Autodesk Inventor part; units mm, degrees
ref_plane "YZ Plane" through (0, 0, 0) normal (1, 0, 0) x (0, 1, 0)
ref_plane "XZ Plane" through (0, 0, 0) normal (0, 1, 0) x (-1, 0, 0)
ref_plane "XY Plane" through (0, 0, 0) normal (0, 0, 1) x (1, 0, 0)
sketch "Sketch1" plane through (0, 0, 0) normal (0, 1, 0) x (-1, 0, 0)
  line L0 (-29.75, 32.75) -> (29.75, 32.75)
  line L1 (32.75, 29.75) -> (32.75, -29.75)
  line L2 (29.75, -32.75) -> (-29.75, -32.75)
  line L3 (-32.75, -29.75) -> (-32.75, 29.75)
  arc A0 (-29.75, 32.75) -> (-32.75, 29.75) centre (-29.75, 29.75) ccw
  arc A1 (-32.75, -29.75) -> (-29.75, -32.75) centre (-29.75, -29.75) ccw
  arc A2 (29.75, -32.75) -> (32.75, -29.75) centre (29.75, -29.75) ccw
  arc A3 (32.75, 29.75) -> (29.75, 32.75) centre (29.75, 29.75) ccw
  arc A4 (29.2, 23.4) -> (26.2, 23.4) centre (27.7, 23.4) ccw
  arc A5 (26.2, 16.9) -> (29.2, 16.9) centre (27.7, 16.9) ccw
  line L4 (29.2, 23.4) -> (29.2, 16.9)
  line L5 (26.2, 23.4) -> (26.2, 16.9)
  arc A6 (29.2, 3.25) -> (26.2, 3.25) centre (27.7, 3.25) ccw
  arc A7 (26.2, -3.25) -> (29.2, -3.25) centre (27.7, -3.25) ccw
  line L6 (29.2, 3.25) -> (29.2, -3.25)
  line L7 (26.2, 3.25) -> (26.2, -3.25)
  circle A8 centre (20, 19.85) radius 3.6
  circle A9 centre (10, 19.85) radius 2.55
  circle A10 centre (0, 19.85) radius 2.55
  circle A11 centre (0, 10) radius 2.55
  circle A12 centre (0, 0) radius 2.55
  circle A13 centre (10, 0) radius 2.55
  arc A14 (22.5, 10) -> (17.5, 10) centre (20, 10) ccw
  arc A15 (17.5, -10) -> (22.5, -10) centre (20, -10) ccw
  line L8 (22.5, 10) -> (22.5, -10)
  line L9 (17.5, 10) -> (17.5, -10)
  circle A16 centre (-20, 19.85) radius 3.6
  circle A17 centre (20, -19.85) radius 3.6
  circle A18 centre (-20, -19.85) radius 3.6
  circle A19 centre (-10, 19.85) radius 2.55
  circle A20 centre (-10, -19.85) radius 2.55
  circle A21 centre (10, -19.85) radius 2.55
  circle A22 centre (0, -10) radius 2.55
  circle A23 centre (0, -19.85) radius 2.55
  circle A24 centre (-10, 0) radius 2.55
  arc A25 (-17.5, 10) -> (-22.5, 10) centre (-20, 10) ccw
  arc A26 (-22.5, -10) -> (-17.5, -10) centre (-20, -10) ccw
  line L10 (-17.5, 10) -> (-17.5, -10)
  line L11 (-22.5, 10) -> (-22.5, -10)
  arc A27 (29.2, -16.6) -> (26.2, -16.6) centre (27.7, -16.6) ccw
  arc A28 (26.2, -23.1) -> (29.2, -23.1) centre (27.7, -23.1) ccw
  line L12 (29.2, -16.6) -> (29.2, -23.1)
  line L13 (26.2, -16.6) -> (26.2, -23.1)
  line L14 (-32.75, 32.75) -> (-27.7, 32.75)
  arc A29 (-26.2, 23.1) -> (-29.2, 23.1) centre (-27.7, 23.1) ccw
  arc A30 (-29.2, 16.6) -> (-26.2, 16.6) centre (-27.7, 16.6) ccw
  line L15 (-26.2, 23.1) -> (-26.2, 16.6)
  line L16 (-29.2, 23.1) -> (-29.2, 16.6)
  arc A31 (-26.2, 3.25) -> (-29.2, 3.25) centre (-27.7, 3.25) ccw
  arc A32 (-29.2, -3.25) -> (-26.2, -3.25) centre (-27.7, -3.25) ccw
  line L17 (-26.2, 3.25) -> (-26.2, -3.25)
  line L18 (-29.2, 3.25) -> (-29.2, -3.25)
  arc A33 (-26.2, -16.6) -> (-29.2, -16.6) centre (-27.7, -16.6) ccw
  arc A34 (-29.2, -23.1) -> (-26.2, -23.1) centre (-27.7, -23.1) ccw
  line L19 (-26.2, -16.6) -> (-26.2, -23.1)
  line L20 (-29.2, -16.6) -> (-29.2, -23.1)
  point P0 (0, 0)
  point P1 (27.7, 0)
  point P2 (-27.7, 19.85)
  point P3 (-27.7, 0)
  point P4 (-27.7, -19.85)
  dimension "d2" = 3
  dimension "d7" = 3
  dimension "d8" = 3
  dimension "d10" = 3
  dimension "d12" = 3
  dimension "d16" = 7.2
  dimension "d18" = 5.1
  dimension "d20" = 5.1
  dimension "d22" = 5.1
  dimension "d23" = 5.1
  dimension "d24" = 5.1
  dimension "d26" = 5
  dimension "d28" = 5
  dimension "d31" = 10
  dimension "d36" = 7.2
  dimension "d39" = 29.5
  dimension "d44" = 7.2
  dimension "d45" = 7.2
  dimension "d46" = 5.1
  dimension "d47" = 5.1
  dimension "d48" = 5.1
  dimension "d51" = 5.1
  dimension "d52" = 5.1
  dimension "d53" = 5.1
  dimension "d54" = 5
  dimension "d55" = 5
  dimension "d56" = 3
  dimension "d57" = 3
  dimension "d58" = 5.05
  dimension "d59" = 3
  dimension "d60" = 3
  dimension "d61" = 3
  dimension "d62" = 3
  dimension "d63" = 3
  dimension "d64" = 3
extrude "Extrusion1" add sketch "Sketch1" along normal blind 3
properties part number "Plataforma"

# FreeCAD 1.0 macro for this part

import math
import FreeCAD as App
import Part
import Sketcher

V = App.Vector

doc = App.newDocument("Part")
params = doc.addObject("Spreadsheet::Sheet", "Params")
for row, (alias, value) in enumerate([
    ("sketch1_radius", "3 mm"),
    ("sketch1_diameter", "7.2 mm"),
    ("sketch1_diameter2", "5.1 mm"),
    ("sketch1_radius2", "1.5 mm"),
    ("sketch1_radius3", "2.5 mm"),
    ("pad1_length", "3 mm"),
], start=1):
    params.set(f"A{row}", alias)
    params.set(f"B{row}", "=" + value)
    params.setAlias(f"B{row}", alias)

body = doc.addObject("PartDesign::Body", "Body")

sketch1 = doc.addObject("Sketcher::SketchObject", "Sketch")
body.addObject(sketch1)
sketch1.AttachmentSupport = (doc.XZ_Plane, [""])
sketch1.MapMode = "FlatFace"
sketch1.addGeometry(Part.LineSegment(V(-29.8, 32.8, 0), V(29.8, 32.8, 0)), False)
sketch1.addGeometry(Part.ArcOfCircle(Part.Circle(V(29.8, 29.8, 0), V(0, 0, 1), 3), math.radians(0), math.radians(90)), False)
sketch1.addGeometry(Part.LineSegment(V(32.8, 29.8, 0), V(32.8, -29.8, 0)), False)
sketch1.addGeometry(Part.ArcOfCircle(Part.Circle(V(29.8, -29.8, 0), V(0, 0, 1), 3), math.radians(-90), math.radians(0)), False)
sketch1.addGeometry(Part.LineSegment(V(29.8, -32.8, 0), V(-29.8, -32.8, 0)), False)
sketch1.addGeometry(Part.ArcOfCircle(Part.Circle(V(-29.8, -29.8, 0), V(0, 0, 1), 3), math.radians(180), math.radians(270)), False)
sketch1.addGeometry(Part.LineSegment(V(-32.8, -29.8, 0), V(-32.8, 29.8, 0)), False)
sketch1.addGeometry(Part.ArcOfCircle(Part.Circle(V(-29.8, 29.8, 0), V(0, 0, 1), 3), math.radians(90), math.radians(180)), False)
sketch1.addGeometry(Part.ArcOfCircle(Part.Circle(V(27.7, -16.6, 0), V(0, 0, 1), 1.5), math.radians(0), math.radians(180)), False)
sketch1.addGeometry(Part.LineSegment(V(26.2, -16.6, 0), V(26.2, -23.1, 0)), False)
sketch1.addGeometry(Part.ArcOfCircle(Part.Circle(V(27.7, -23.1, 0), V(0, 0, 1), 1.5), math.radians(180), math.radians(360)), False)
sketch1.addGeometry(Part.LineSegment(V(29.2, -23.1, 0), V(29.2, -16.6, 0)), False)
sketch1.addGeometry(Part.Circle(V(20, -19.9, 0), V(0, 0, 1), 3.6), False)
sketch1.addGeometry(Part.Circle(V(10, -19.9, 0), V(0, 0, 1), 2.5), False)
sketch1.addGeometry(Part.Circle(V(0, -19.9, 0), V(0, 0, 1), 2.5), False)
sketch1.addGeometry(Part.Circle(V(-10, -19.9, 0), V(0, 0, 1), 2.5), False)
sketch1.addGeometry(Part.Circle(V(-20, -19.9, 0), V(0, 0, 1), 3.6), False)
sketch1.addGeometry(Part.ArcOfCircle(Part.Circle(V(-27.7, -16.6, 0), V(0, 0, 1), 1.5), math.radians(0), math.radians(180)), False)
sketch1.addGeometry(Part.LineSegment(V(-29.2, -16.6, 0), V(-29.2, -23.1, 0)), False)
sketch1.addGeometry(Part.ArcOfCircle(Part.Circle(V(-27.7, -23.1, 0), V(0, 0, 1), 1.5), math.radians(180), math.radians(360)), False)
sketch1.addGeometry(Part.LineSegment(V(-26.2, -23.1, 0), V(-26.2, -16.6, 0)), False)
sketch1.addGeometry(Part.Circle(V(0, -10, 0), V(0, 0, 1), 2.5), False)
sketch1.addGeometry(Part.ArcOfCircle(Part.Circle(V(27.7, 3.2, 0), V(0, 0, 1), 1.5), math.radians(0), math.radians(180)), False)
sketch1.addGeometry(Part.LineSegment(V(26.2, 3.2, 0), V(26.2, -3.2, 0)), False)
sketch1.addGeometry(Part.ArcOfCircle(Part.Circle(V(27.7, -3.2, 0), V(0, 0, 1), 1.5), math.radians(180), math.radians(360)), False)
sketch1.addGeometry(Part.LineSegment(V(29.2, -3.2, 0), V(29.2, 3.2, 0)), False)
sketch1.addGeometry(Part.ArcOfCircle(Part.Circle(V(20, 10, 0), V(0, 0, 1), 2.5), math.radians(0), math.radians(180)), False)
sketch1.addGeometry(Part.LineSegment(V(17.5, 10, 0), V(17.5, -10, 0)), False)
sketch1.addGeometry(Part.ArcOfCircle(Part.Circle(V(20, -10, 0), V(0, 0, 1), 2.5), math.radians(180), math.radians(360)), False)
sketch1.addGeometry(Part.LineSegment(V(22.5, -10, 0), V(22.5, 10, 0)), False)
sketch1.addGeometry(Part.Circle(V(10, 0, 0), V(0, 0, 1), 2.5), False)
sketch1.addGeometry(Part.ArcOfCircle(Part.Circle(V(27.7, 23.1, 0), V(0, 0, 1), 1.5), math.radians(0), math.radians(180)), False)
sketch1.addGeometry(Part.LineSegment(V(26.2, 23.1, 0), V(26.2, 16.6, 0)), False)
sketch1.addGeometry(Part.ArcOfCircle(Part.Circle(V(27.7, 16.6, 0), V(0, 0, 1), 1.5), math.radians(180), math.radians(360)), False)
sketch1.addGeometry(Part.LineSegment(V(29.2, 16.6, 0), V(29.2, 23.1, 0)), False)
sketch1.addGeometry(Part.Circle(V(20, 19.9, 0), V(0, 0, 1), 3.6), False)
sketch1.addGeometry(Part.Circle(V(10, 19.9, 0), V(0, 0, 1), 2.5), False)
sketch1.addGeometry(Part.Circle(V(0, 0, 0), V(0, 0, 1), 2.5), False)
sketch1.addGeometry(Part.Circle(V(-10, 0, 0), V(0, 0, 1), 2.5), False)
sketch1.addGeometry(Part.Circle(V(0, 10, 0), V(0, 0, 1), 2.5), False)
sketch1.addGeometry(Part.ArcOfCircle(Part.Circle(V(-20, 10, 0), V(0, 0, 1), 2.5), math.radians(0), math.radians(180)), False)
sketch1.addGeometry(Part.LineSegment(V(-22.5, 10, 0), V(-22.5, -10, 0)), False)
sketch1.addGeometry(Part.ArcOfCircle(Part.Circle(V(-20, -10, 0), V(0, 0, 1), 2.5), math.radians(180), math.radians(360)), False)
sketch1.addGeometry(Part.LineSegment(V(-17.5, -10, 0), V(-17.5, 10, 0)), False)
sketch1.addGeometry(Part.ArcOfCircle(Part.Circle(V(-27.7, 3.2, 0), V(0, 0, 1), 1.5), math.radians(0), math.radians(180)), False)
sketch1.addGeometry(Part.LineSegment(V(-29.2, 3.2, 0), V(-29.2, -3.2, 0)), False)
sketch1.addGeometry(Part.ArcOfCircle(Part.Circle(V(-27.7, -3.2, 0), V(0, 0, 1), 1.5), math.radians(180), math.radians(360)), False)
sketch1.addGeometry(Part.LineSegment(V(-26.2, -3.2, 0), V(-26.2, 3.2, 0)), False)
sketch1.addGeometry(Part.Circle(V(0, 19.9, 0), V(0, 0, 1), 2.5), False)
sketch1.addGeometry(Part.Circle(V(-10, 19.9, 0), V(0, 0, 1), 2.5), False)
sketch1.addGeometry(Part.Circle(V(-20, 19.9, 0), V(0, 0, 1), 3.6), False)
sketch1.addGeometry(Part.ArcOfCircle(Part.Circle(V(-27.7, 23.4, 0), V(0, 0, 1), 1.5), math.radians(0), math.radians(180)), False)
sketch1.addGeometry(Part.LineSegment(V(-29.2, 23.4, 0), V(-29.2, 16.9, 0)), False)
sketch1.addGeometry(Part.ArcOfCircle(Part.Circle(V(-27.7, 16.9, 0), V(0, 0, 1), 1.5), math.radians(180), math.radians(360)), False)
sketch1.addGeometry(Part.LineSegment(V(-26.2, 16.9, 0), V(-26.2, 23.4, 0)), False)
sketch1.addConstraint(Sketcher.Constraint("Tangent", 0, 2, 1, 2))
sketch1.addConstraint(Sketcher.Constraint("Tangent", 1, 1, 2, 1))
sketch1.addConstraint(Sketcher.Constraint("Tangent", 2, 2, 3, 2))
sketch1.addConstraint(Sketcher.Constraint("Tangent", 3, 1, 4, 1))
sketch1.addConstraint(Sketcher.Constraint("Tangent", 4, 2, 5, 2))
sketch1.addConstraint(Sketcher.Constraint("Tangent", 5, 1, 6, 1))
sketch1.addConstraint(Sketcher.Constraint("Tangent", 6, 2, 7, 2))
sketch1.addConstraint(Sketcher.Constraint("Tangent", 7, 1, 0, 1))
sketch1.addConstraint(Sketcher.Constraint("Tangent", 8, 2, 9, 1))
sketch1.addConstraint(Sketcher.Constraint("Tangent", 9, 2, 10, 1))
sketch1.addConstraint(Sketcher.Constraint("Tangent", 10, 2, 11, 1))
sketch1.addConstraint(Sketcher.Constraint("Tangent", 11, 2, 8, 1))
sketch1.addConstraint(Sketcher.Constraint("Tangent", 17, 2, 18, 1))
sketch1.addConstraint(Sketcher.Constraint("Tangent", 18, 2, 19, 1))
sketch1.addConstraint(Sketcher.Constraint("Tangent", 19, 2, 20, 1))
sketch1.addConstraint(Sketcher.Constraint("Tangent", 20, 2, 17, 1))
sketch1.addConstraint(Sketcher.Constraint("Tangent", 22, 2, 23, 1))
sketch1.addConstraint(Sketcher.Constraint("Tangent", 23, 2, 24, 1))
sketch1.addConstraint(Sketcher.Constraint("Tangent", 24, 2, 25, 1))
sketch1.addConstraint(Sketcher.Constraint("Tangent", 25, 2, 22, 1))
sketch1.addConstraint(Sketcher.Constraint("Tangent", 26, 2, 27, 1))
sketch1.addConstraint(Sketcher.Constraint("Tangent", 27, 2, 28, 1))
sketch1.addConstraint(Sketcher.Constraint("Tangent", 28, 2, 29, 1))
sketch1.addConstraint(Sketcher.Constraint("Tangent", 29, 2, 26, 1))
sketch1.addConstraint(Sketcher.Constraint("Tangent", 31, 2, 32, 1))
sketch1.addConstraint(Sketcher.Constraint("Tangent", 32, 2, 33, 1))
sketch1.addConstraint(Sketcher.Constraint("Tangent", 33, 2, 34, 1))
sketch1.addConstraint(Sketcher.Constraint("Tangent", 34, 2, 31, 1))
sketch1.addConstraint(Sketcher.Constraint("Tangent", 40, 2, 41, 1))
sketch1.addConstraint(Sketcher.Constraint("Tangent", 41, 2, 42, 1))
sketch1.addConstraint(Sketcher.Constraint("Tangent", 42, 2, 43, 1))
sketch1.addConstraint(Sketcher.Constraint("Tangent", 43, 2, 40, 1))
sketch1.addConstraint(Sketcher.Constraint("Tangent", 44, 2, 45, 1))
sketch1.addConstraint(Sketcher.Constraint("Tangent", 45, 2, 46, 1))
sketch1.addConstraint(Sketcher.Constraint("Tangent", 46, 2, 47, 1))
sketch1.addConstraint(Sketcher.Constraint("Tangent", 47, 2, 44, 1))
sketch1.addConstraint(Sketcher.Constraint("Tangent", 51, 2, 52, 1))
sketch1.addConstraint(Sketcher.Constraint("Tangent", 52, 2, 53, 1))
sketch1.addConstraint(Sketcher.Constraint("Tangent", 53, 2, 54, 1))
sketch1.addConstraint(Sketcher.Constraint("Tangent", 54, 2, 51, 1))
sketch1.addConstraint(Sketcher.Constraint("Horizontal", 0))
sketch1.addConstraint(Sketcher.Constraint("Vertical", 2))
sketch1.addConstraint(Sketcher.Constraint("Horizontal", 4))
sketch1.addConstraint(Sketcher.Constraint("Vertical", 6))
sketch1.addConstraint(Sketcher.Constraint("Vertical", 9))
sketch1.addConstraint(Sketcher.Constraint("Vertical", 11))
sketch1.addConstraint(Sketcher.Constraint("Vertical", 18))
sketch1.addConstraint(Sketcher.Constraint("Vertical", 20))
sketch1.addConstraint(Sketcher.Constraint("Vertical", 23))
sketch1.addConstraint(Sketcher.Constraint("Vertical", 25))
sketch1.addConstraint(Sketcher.Constraint("Vertical", 27))
sketch1.addConstraint(Sketcher.Constraint("Vertical", 29))
sketch1.addConstraint(Sketcher.Constraint("Vertical", 32))
sketch1.addConstraint(Sketcher.Constraint("Vertical", 34))
sketch1.addConstraint(Sketcher.Constraint("Vertical", 41))
sketch1.addConstraint(Sketcher.Constraint("Vertical", 43))
sketch1.addConstraint(Sketcher.Constraint("Vertical", 45))
sketch1.addConstraint(Sketcher.Constraint("Vertical", 47))
sketch1.addConstraint(Sketcher.Constraint("Vertical", 52))
sketch1.addConstraint(Sketcher.Constraint("Vertical", 54))
sketch1.addConstraint(Sketcher.Constraint("Coincident", 37, 3, -1, 1))
sketch1.addConstraint(Sketcher.Constraint("Equal", 1, 3))
sketch1.addConstraint(Sketcher.Constraint("Equal", 3, 5))
sketch1.addConstraint(Sketcher.Constraint("Equal", 5, 7))
sketch1.addConstraint(Sketcher.Constraint("Equal", 13, 14))
sketch1.addConstraint(Sketcher.Constraint("Equal", 14, 15))
sketch1.addConstraint(Sketcher.Constraint("Equal", 12, 16))
sketch1.addConstraint(Sketcher.Constraint("Equal", 10, 17))
sketch1.addConstraint(Sketcher.Constraint("Equal", 15, 21))
sketch1.addConstraint(Sketcher.Constraint("Equal", 19, 22))
sketch1.addConstraint(Sketcher.Constraint("Equal", 21, 30))
sketch1.addConstraint(Sketcher.Constraint("Equal", 24, 31))
sketch1.addConstraint(Sketcher.Constraint("Equal", 16, 35))
sketch1.addConstraint(Sketcher.Constraint("Equal", 30, 36))
sketch1.addConstraint(Sketcher.Constraint("Equal", 36, 37))
sketch1.addConstraint(Sketcher.Constraint("Equal", 37, 38))
sketch1.addConstraint(Sketcher.Constraint("Equal", 38, 39))
sketch1.addConstraint(Sketcher.Constraint("Equal", 28, 40))
sketch1.addConstraint(Sketcher.Constraint("Equal", 33, 44))
sketch1.addConstraint(Sketcher.Constraint("Equal", 39, 48))
sketch1.addConstraint(Sketcher.Constraint("Equal", 48, 49))
sketch1.addConstraint(Sketcher.Constraint("Equal", 35, 50))
sketch1.addConstraint(Sketcher.Constraint("Equal", 46, 51))
sketch1.addConstraint(Sketcher.Constraint("Symmetric", 1, 3, 5, 3, -1, 1))
sketch1.addConstraint(Sketcher.Constraint("Symmetric", 19, 3, 31, 3, -1, 1))
sketch1.addConstraint(Sketcher.Constraint("Symmetric", 16, 3, 35, 3, -1, 1))
sketch1.addConstraint(Sketcher.Constraint("Symmetric", 15, 3, 36, 3, -1, 1))
sketch1.addConstraint(Sketcher.Constraint("Symmetric", 30, 3, 38, 3, -1, 1))
sketch1.addConstraint(Sketcher.Constraint("Symmetric", 21, 3, 39, 3, -1, 1))
sketch1.addConstraint(Sketcher.Constraint("Symmetric", 28, 3, 40, 3, -1, 1))
sketch1.addConstraint(Sketcher.Constraint("Symmetric", 24, 3, 44, 3, -1, 1))
sketch1.addConstraint(Sketcher.Constraint("Symmetric", 14, 3, 48, 3, -1, 1))
sketch1.addConstraint(Sketcher.Constraint("Symmetric", 13, 3, 49, 3, -1, 1))
sketch1.addConstraint(Sketcher.Constraint("Symmetric", 12, 3, 50, 3, -1, 1))
sketch1.addConstraint(Sketcher.Constraint("Symmetric", 13, 3, 15, 3, -2))
sketch1.addConstraint(Sketcher.Constraint("Symmetric", 12, 3, 16, 3, -2))
sketch1.addConstraint(Sketcher.Constraint("Symmetric", 8, 3, 17, 3, -2))
sketch1.addConstraint(Sketcher.Constraint("PointOnObject", 14, 3, -2))
sketch1.addConstraint(Sketcher.Constraint("PointOnObject", 21, 3, -2))
sketch1.addConstraint(Sketcher.Constraint("PointOnObject", 30, 3, -1))
sketch1.addConstraint(Sketcher.Constraint("Horizontal", 12, 3, 13, 3))
sketch1.addConstraint(Sketcher.Constraint("Horizontal", 13, 3, 14, 3))
sketch1.addConstraint(Sketcher.Constraint("Horizontal", 10, 3, 19, 3))
sketch1.addConstraint(Sketcher.Constraint("Horizontal", 21, 3, 28, 3))
sketch1.addConstraint(Sketcher.Constraint("Horizontal", 26, 3, 39, 3))
sketch1.addConstraint(Sketcher.Constraint("Horizontal", 28, 3, 42, 3))
sketch1.addConstraint(Sketcher.Constraint("Horizontal", 22, 3, 44, 3))
sketch1.addConstraint(Sketcher.Constraint("Horizontal", 24, 3, 46, 3))
sketch1.addConstraint(Sketcher.Constraint("Vertical", 10, 3, 22, 3))
sketch1.addConstraint(Sketcher.Constraint("Vertical", 12, 3, 26, 3))
sketch1.addConstraint(Sketcher.Constraint("Vertical", 13, 3, 30, 3))
sketch1.addConstraint(Sketcher.Constraint("Vertical", 46, 3, 51, 3))
sketch1.addConstraint(Sketcher.Constraint("Equal", 4, 2))
sketch1.addConstraint(Sketcher.Constraint("Equal", 20, 23))
sketch1.addConstraint(Sketcher.Constraint("Equal", 25, 32))
sketch1.addConstraint(Sketcher.Constraint("Equal", 47, 52))
sketch1.addConstraint(Sketcher.Constraint("Radius", 1, 3.0))
sketch1.addConstraint(Sketcher.Constraint("Diameter", 12, 7.2))
sketch1.addConstraint(Sketcher.Constraint("Diameter", 13, 5.1))
sketch1.addConstraint(Sketcher.Constraint("Radius", 8, 1.5))
sketch1.addConstraint(Sketcher.Constraint("Radius", 26, 2.5))
sketch1.addConstraint(Sketcher.Constraint("DistanceX", -1, 1, 13, 3, 10.0))
sketch1.addConstraint(Sketcher.Constraint("DistanceY", 21, 3, -1, 1, 10.0))
sketch1.addConstraint(Sketcher.Constraint("DistanceX", 0, 1, 0, 2, 59.5))
sketch1.addConstraint(Sketcher.Constraint("DistanceY", 9, 2, 9, 1, 6.5))
sketch1.addConstraint(Sketcher.Constraint("DistanceX", -1, 1, 12, 3, 20.0))
sketch1.addConstraint(Sketcher.Constraint("DistanceX", -1, 1, 8, 3, 27.7))
sketch1.addConstraint(Sketcher.Constraint("DistanceY", 8, 3, -1, 1, 16.6))
sketch1.addConstraint(Sketcher.Constraint("DistanceY", -1, 1, 51, 3, 23.4))
sketch1.addConstraint(Sketcher.Constraint("DistanceY", 12, 3, -1, 1, 19.85))
sketch1.setExpression("Constraints[116]", "Params.sketch1_radius")
sketch1.setExpression("Constraints[117]", "Params.sketch1_diameter")
sketch1.setExpression("Constraints[118]", "Params.sketch1_diameter2")
sketch1.setExpression("Constraints[119]", "Params.sketch1_radius2")
sketch1.setExpression("Constraints[120]", "Params.sketch1_radius3")
pad1 = doc.addObject("PartDesign::Pad", "Pad")
body.addObject(pad1)
pad1.Profile = sketch1
pad1.setExpression("Length", "Params.pad1_length")
pad1.Reversed = True

doc.recompute()
